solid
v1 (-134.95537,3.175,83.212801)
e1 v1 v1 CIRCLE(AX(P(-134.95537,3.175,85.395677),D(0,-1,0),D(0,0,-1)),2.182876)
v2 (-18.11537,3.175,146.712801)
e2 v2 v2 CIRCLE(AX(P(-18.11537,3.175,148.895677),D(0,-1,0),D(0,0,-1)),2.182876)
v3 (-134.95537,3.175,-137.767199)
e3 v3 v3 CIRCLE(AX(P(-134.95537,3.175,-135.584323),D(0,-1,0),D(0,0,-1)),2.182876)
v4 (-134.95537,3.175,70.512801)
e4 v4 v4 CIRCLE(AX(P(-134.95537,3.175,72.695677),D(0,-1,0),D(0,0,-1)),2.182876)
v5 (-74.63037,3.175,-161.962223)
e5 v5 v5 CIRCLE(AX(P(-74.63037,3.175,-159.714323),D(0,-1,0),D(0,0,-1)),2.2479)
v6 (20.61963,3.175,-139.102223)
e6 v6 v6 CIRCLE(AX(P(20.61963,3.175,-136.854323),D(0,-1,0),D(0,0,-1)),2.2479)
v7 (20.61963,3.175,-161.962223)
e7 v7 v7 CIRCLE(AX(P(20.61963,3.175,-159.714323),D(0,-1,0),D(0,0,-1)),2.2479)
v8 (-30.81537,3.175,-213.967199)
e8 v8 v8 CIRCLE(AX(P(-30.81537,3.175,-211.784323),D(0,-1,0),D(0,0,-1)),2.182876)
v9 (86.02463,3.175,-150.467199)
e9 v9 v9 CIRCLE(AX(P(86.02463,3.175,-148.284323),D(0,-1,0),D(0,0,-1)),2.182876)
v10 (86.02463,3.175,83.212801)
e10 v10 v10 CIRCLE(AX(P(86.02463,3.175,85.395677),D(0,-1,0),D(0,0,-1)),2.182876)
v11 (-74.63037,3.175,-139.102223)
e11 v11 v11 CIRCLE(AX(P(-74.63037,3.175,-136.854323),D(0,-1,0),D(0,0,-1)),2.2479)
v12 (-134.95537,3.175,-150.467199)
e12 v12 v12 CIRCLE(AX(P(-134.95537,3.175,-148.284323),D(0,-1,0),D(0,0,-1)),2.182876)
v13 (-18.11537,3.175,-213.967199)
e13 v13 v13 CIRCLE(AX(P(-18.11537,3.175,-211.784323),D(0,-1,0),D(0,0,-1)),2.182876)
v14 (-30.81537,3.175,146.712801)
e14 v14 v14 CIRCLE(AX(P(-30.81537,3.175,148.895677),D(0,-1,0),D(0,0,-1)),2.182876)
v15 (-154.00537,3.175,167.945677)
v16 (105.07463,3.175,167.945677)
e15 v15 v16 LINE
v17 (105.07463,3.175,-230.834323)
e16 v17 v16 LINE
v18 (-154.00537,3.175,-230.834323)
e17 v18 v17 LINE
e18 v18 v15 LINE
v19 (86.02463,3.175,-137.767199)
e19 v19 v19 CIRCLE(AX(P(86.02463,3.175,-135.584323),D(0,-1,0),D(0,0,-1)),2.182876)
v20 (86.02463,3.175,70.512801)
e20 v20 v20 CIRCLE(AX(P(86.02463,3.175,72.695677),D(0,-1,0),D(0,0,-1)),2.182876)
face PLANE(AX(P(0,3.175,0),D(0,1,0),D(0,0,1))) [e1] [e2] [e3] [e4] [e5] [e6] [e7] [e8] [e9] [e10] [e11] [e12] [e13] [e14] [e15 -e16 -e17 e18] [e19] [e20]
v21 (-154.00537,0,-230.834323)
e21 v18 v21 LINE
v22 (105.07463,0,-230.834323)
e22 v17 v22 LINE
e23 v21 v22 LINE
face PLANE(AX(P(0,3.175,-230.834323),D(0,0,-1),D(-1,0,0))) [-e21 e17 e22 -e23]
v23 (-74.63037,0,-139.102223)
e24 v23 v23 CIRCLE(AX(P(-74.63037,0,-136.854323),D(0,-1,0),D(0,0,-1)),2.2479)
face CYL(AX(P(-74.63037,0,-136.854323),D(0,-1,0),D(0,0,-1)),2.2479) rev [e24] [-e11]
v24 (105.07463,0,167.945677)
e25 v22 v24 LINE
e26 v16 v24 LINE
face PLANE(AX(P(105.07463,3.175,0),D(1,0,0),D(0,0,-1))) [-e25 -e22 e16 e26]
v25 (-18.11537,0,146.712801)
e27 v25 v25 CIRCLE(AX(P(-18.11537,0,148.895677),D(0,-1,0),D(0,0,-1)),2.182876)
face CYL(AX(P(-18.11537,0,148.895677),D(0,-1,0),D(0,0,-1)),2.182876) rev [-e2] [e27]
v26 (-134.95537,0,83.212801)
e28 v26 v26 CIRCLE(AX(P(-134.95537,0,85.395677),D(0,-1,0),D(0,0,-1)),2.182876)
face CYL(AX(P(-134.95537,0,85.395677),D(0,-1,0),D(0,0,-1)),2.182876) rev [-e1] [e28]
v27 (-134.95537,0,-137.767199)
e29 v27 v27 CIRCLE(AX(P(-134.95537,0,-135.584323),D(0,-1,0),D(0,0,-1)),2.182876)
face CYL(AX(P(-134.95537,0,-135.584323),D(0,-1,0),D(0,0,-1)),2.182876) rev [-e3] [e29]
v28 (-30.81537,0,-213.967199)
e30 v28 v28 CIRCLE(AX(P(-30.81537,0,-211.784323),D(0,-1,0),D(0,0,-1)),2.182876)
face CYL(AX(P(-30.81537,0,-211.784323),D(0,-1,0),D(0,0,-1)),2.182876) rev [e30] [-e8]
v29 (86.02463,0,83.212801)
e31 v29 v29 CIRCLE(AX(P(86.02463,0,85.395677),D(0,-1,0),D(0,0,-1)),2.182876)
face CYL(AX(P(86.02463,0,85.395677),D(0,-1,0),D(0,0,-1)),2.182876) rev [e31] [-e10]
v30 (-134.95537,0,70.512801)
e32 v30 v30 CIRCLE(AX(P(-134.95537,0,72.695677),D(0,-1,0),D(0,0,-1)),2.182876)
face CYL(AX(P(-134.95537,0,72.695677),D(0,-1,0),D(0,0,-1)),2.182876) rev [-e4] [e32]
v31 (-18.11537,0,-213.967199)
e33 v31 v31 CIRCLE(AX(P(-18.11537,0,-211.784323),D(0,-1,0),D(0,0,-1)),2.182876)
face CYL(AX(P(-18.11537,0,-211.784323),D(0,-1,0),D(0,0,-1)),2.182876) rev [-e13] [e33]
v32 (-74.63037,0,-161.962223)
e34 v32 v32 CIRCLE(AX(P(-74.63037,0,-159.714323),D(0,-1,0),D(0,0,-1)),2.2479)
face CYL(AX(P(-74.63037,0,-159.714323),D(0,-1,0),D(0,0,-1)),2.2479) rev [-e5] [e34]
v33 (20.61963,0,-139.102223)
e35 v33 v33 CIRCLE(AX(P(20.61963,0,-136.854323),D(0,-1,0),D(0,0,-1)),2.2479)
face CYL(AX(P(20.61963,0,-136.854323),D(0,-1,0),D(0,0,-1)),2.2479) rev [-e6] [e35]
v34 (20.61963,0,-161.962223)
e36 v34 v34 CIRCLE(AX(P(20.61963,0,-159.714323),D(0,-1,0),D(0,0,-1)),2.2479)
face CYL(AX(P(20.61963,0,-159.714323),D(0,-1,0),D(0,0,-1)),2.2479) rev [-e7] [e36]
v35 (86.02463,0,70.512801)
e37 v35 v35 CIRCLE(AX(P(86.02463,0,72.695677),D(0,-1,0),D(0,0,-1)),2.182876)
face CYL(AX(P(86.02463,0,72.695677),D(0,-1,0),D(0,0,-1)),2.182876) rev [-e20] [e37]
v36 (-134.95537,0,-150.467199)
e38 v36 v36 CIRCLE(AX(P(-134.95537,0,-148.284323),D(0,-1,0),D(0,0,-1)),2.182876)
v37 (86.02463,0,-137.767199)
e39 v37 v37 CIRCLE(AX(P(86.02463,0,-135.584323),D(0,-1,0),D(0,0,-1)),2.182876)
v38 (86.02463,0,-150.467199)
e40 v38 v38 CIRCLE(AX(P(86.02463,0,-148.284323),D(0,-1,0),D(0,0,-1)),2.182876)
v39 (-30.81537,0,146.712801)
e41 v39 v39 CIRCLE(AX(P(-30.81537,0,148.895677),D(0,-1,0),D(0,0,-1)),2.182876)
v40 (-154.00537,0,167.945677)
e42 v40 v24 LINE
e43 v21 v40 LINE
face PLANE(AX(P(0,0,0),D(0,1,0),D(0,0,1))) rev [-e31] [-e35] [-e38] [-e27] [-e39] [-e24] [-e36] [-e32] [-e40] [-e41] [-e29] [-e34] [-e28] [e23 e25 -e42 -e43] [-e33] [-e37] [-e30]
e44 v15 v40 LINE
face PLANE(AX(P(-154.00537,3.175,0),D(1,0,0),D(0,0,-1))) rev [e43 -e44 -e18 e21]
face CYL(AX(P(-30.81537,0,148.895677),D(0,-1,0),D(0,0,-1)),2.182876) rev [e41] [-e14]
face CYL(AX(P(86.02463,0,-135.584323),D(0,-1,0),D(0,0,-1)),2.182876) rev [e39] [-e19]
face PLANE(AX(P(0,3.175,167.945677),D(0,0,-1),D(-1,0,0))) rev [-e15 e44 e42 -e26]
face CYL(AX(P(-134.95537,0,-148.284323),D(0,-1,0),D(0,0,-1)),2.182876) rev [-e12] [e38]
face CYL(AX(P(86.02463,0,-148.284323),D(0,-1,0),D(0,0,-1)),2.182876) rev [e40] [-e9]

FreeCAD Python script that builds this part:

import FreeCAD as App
import Part
import Sketcher
from FreeCAD import Vector
Q = App.Units.Quantity

doc = App.newDocument("Part")
body = doc.addObject("PartDesign::Body", "Body")

sketch1 = body.newObject("Sketcher::SketchObject", "Sketch")
sketch1.AttachmentSupport = (doc.getObject("XZ_Plane"), [""])
sketch1.MapMode = "FlatFace"
sketch1.addGeometry(Part.LineSegment(Vector(-154, -231, 0), Vector(-154, 168, 0)), False)
sketch1.addGeometry(Part.LineSegment(Vector(-154, 168, 0), Vector(105, 168, 0)), False)
sketch1.addGeometry(Part.LineSegment(Vector(105, 168, 0), Vector(105, -231, 0)), False)
sketch1.addGeometry(Part.LineSegment(Vector(105, -231, 0), Vector(-154, -231, 0)), False)
sketch1.addConstraint(Sketcher.Constraint("Coincident", 0, 2, 1, 1))
sketch1.addConstraint(Sketcher.Constraint("Coincident", 1, 2, 2, 1))
sketch1.addConstraint(Sketcher.Constraint("Coincident", 2, 2, 3, 1))
sketch1.addConstraint(Sketcher.Constraint("Coincident", 3, 2, 0, 1))
sketch1.addConstraint(Sketcher.Constraint("Vertical", 0))
sketch1.addConstraint(Sketcher.Constraint("Horizontal", 1))
sketch1.addConstraint(Sketcher.Constraint("Vertical", 2))
sketch1.addConstraint(Sketcher.Constraint("Horizontal", 3))
sketch1.addConstraint(Sketcher.Constraint("DistanceX", 1, 1, 1, 2, Q("10.2 in")))
sketch1.addConstraint(Sketcher.Constraint("DistanceY", 0, 1, 0, 2, Q("15.7 in")))
sketch1.addConstraint(Sketcher.Constraint("DistanceX", 0, 2, -1, 1, 154.00537))
sketch1.addConstraint(Sketcher.Constraint("DistanceY", -1, 1, 0, 2, 167.945677))
pad1 = body.newObject("PartDesign::Pad", "Pad")
pad1.Profile = sketch1
pad1.Length = Q("0.125 in")
pad1.Reversed = True

sketch2 = body.newObject("Sketcher::SketchObject", "Sketch001")
sketch2.AttachmentSupport = (doc.getObject("XZ_Plane"), [""])
sketch2.MapMode = "FlatFace"
sketch2.addGeometry(Part.Circle(Vector(20.6, -159.7, 0), Vector(0, 0, 1), 2.2), False)
sketch2.addGeometry(Part.Circle(Vector(20.6, -136.9, 0), Vector(0, 0, 1), 2.2), False)
sketch2.addGeometry(Part.Circle(Vector(-74.6, -136.9, 0), Vector(0, 0, 1), 2.2), False)
sketch2.addGeometry(Part.Circle(Vector(-74.6, -159.7, 0), Vector(0, 0, 1), 2.2), False)
sketch2.addConstraint(Sketcher.Constraint("Equal", 0, 1))
sketch2.addConstraint(Sketcher.Constraint("Equal", 1, 2))
sketch2.addConstraint(Sketcher.Constraint("Equal", 2, 3))
sketch2.addConstraint(Sketcher.Constraint("Horizontal", 1, 3, 2, 3))
sketch2.addConstraint(Sketcher.Constraint("Horizontal", 0, 3, 3, 3))
sketch2.addConstraint(Sketcher.Constraint("Vertical", 0, 3, 1, 3))
sketch2.addConstraint(Sketcher.Constraint("Vertical", 2, 3, 3, 3))
sketch2.addConstraint(Sketcher.Constraint("Diameter", 0, Q("0.177 in")))
sketch2.addConstraint(Sketcher.Constraint("DistanceY", 0, 3, 1, 3, Q("0.9 in")))
sketch2.addConstraint(Sketcher.Constraint("DistanceX", 2, 3, 1, 3, Q("3.75 in")))
sketch2.addConstraint(Sketcher.Constraint("DistanceX", -1, 1, 0, 3, 20.61963))
sketch2.addConstraint(Sketcher.Constraint("DistanceY", 0, 3, -1, 1, 159.714323))
doc.recompute()
hole = body.newObject("PartDesign::Hole", "Hole")
hole.Profile = sketch2
hole.ThreadType = "None"
hole.Diameter = Q("0.177 in")
hole.DepthType = "ThroughAll"

sketch3 = body.newObject("Sketcher::SketchObject", "Sketch002")
sketch3.AttachmentSupport = (doc.getObject("XZ_Plane"), [""])
sketch3.MapMode = "FlatFace"
sketch3.addGeometry(Part.Circle(Vector(86, -148.3, 0), Vector(0, 0, 1), 2.2), False)
sketch3.addGeometry(Part.Circle(Vector(-30.8, -211.8, 0), Vector(0, 0, 1), 2.2), False)
sketch3.addGeometry(Part.Circle(Vector(-135, -148.3, 0), Vector(0, 0, 1), 2.2), False)
sketch3.addGeometry(Part.Circle(Vector(-135, 85.4, 0), Vector(0, 0, 1), 2.2), False)
sketch3.addGeometry(Part.Circle(Vector(-18.1, -211.8, 0), Vector(0, 0, 1), 2.2), False)
sketch3.addGeometry(Part.Circle(Vector(86, 85.4, 0), Vector(0, 0, 1), 2.2), False)
sketch3.addGeometry(Part.Circle(Vector(-135, 72.7, 0), Vector(0, 0, 1), 2.2), False)
sketch3.addGeometry(Part.Circle(Vector(-135, -135.6, 0), Vector(0, 0, 1), 2.2), False)
sketch3.addGeometry(Part.Circle(Vector(86, -135.6, 0), Vector(0, 0, 1), 2.2), False)
sketch3.addGeometry(Part.Circle(Vector(86, 72.7, 0), Vector(0, 0, 1), 2.2), False)
sketch3.addGeometry(Part.Circle(Vector(-18.1, 148.9, 0), Vector(0, 0, 1), 2.2), False)
sketch3.addGeometry(Part.Circle(Vector(-30.8, 148.9, 0), Vector(0, 0, 1), 2.2), False)
sketch3.addConstraint(Sketcher.Constraint("Equal", 0, 1))
sketch3.addConstraint(Sketcher.Constraint("Equal", 1, 2))
sketch3.addConstraint(Sketcher.Constraint("Equal", 2, 3))
sketch3.addConstraint(Sketcher.Constraint("Equal", 3, 4))
sketch3.addConstraint(Sketcher.Constraint("Equal", 4, 5))
sketch3.addConstraint(Sketcher.Constraint("Equal", 5, 6))
sketch3.addConstraint(Sketcher.Constraint("Equal", 6, 7))
sketch3.addConstraint(Sketcher.Constraint("Equal", 7, 8))
sketch3.addConstraint(Sketcher.Constraint("Equal", 8, 9))
sketch3.addConstraint(Sketcher.Constraint("Equal", 9, 10))
sketch3.addConstraint(Sketcher.Constraint("Equal", 10, 11))
sketch3.addConstraint(Sketcher.Constraint("Horizontal", 0, 3, 2, 3))
sketch3.addConstraint(Sketcher.Constraint("Horizontal", 1, 3, 4, 3))
sketch3.addConstraint(Sketcher.Constraint("Horizontal", 3, 3, 5, 3))
sketch3.addConstraint(Sketcher.Constraint("Horizontal", 7, 3, 8, 3))
sketch3.addConstraint(Sketcher.Constraint("Horizontal", 6, 3, 9, 3))
sketch3.addConstraint(Sketcher.Constraint("Horizontal", 10, 3, 11, 3))
sketch3.addConstraint(Sketcher.Constraint("Vertical", 2, 3, 3, 3))
sketch3.addConstraint(Sketcher.Constraint("Vertical", 0, 3, 5, 3))
sketch3.addConstraint(Sketcher.Constraint("Vertical", 3, 3, 6, 3))
sketch3.addConstraint(Sketcher.Constraint("Vertical", 6, 3, 7, 3))
sketch3.addConstraint(Sketcher.Constraint("Vertical", 5, 3, 8, 3))
sketch3.addConstraint(Sketcher.Constraint("Vertical", 8, 3, 9, 3))
sketch3.addConstraint(Sketcher.Constraint("Vertical", 4, 3, 10, 3))
sketch3.addConstraint(Sketcher.Constraint("Vertical", 1, 3, 11, 3))
sketch3.addConstraint(Sketcher.Constraint("DistanceY", 1, 3, 7, 3, Q("3 in")))
sketch3.addConstraint(Sketcher.Constraint("DistanceY", 9, 3, 10, 3, Q("3 in")))
sketch3.addConstraint(Sketcher.Constraint("DistanceX", 1, 3, 0, 3, Q("4.6 in")))
sketch3.addConstraint(Sketcher.Constraint("DistanceY", 1, 3, 0, 3, Q("2.5 in")))
sketch3.addConstraint(Sketcher.Constraint("DistanceX", 2, 3, 1, 3, Q("4.1 in")))
sketch3.addConstraint(Sketcher.Constraint("DistanceY", 2, 3, 3, 3, Q("9.2 in")))
sketch3.addConstraint(Sketcher.Constraint("DistanceX", 1, 3, 4, 3, Q("0.5 in")))
sketch3.addConstraint(Sketcher.Constraint("DistanceY", 6, 3, 3, 3, Q("0.5 in")))
sketch3.addConstraint(Sketcher.Constraint("Diameter", 0, 4.365752))
sketch3.addConstraint(Sketcher.Constraint("DistanceX", -1, 1, 0, 3, 86.02463))
sketch3.addConstraint(Sketcher.Constraint("DistanceY", 0, 3, -1, 1, 148.284323))
doc.recompute()
hole2 = body.newObject("PartDesign::Hole", "Hole001")
hole2.Profile = sketch3
hole2.ThreadType = "None"
hole2.Diameter = 4.365752
hole2.DepthType = "ThroughAll"

doc.recompute()
